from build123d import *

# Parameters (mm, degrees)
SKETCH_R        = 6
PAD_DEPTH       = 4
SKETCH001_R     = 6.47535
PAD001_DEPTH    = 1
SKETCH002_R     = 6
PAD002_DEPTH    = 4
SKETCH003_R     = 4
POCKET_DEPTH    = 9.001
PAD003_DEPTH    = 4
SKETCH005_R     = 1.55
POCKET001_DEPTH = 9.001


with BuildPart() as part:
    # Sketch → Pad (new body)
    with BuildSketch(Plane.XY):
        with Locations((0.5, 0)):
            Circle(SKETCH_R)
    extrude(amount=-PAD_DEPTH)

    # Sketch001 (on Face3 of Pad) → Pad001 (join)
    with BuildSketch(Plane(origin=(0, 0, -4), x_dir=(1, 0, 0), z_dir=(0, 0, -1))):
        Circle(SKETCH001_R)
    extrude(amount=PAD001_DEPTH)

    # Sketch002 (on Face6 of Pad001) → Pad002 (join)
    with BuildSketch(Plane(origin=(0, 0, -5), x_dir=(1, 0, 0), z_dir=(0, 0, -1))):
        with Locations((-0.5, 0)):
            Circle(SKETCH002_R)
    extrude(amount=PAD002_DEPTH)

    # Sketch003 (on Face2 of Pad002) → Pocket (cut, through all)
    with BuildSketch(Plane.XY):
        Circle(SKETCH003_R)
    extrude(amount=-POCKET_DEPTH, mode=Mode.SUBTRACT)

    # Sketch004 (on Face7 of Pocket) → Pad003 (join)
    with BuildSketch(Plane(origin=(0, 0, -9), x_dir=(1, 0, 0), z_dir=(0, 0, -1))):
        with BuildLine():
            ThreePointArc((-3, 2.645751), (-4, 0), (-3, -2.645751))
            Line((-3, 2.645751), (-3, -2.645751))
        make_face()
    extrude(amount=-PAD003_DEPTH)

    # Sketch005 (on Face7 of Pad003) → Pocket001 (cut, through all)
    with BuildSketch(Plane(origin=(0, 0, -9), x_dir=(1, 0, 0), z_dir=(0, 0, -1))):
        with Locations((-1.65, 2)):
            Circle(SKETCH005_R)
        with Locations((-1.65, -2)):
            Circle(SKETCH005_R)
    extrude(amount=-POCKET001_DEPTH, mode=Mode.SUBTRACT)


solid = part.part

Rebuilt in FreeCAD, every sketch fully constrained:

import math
import FreeCAD as App
import Part
import Sketcher
from FreeCAD import Vector

doc = App.newDocument("Part")
body = doc.addObject("PartDesign::Body", "Body")

sketch1 = body.newObject("Sketcher::SketchObject", "Sketch")
sketch1.AttachmentSupport = (doc.getObject("XY_Plane"), [""])
sketch1.MapMode = "FlatFace"
sketch1.addGeometry(Part.Circle(Vector(0, 0, 0), Vector(0, 0, 1), 6), False)
sketch1.addConstraint([
    Sketcher.Constraint("PointOnObject", 0, 3, -1),
    Sketcher.Constraint("Diameter", 0, 12.0),
    Sketcher.Constraint("DistanceX", -1, 1, 0, 3, 0.5),
])
pad1 = body.newObject("PartDesign::Pad", "Pad")
pad1.Profile = sketch1
pad1.Length = 4
pad1.Reversed = True

sketch2 = body.newObject("Sketcher::SketchObject", "Sketch001")
sketch2.AttachmentSupport = (doc.getObject("XY_Plane"), [""])
sketch2.MapMode = "FlatFace"
sketch2.AttachmentOffset = App.Placement(Vector(0, 0, -4), App.Rotation())
sketch2.addGeometry(Part.Circle(Vector(0, 0, 0), Vector(0, 0, 1), 6), False)
sketch2.addConstraint([
    Sketcher.Constraint("Coincident", 0, 3, -1, 1),
    Sketcher.Constraint("Diameter", 0, 12.9507),
])
pad2 = body.newObject("PartDesign::Pad", "Pad001")
pad2.Profile = sketch2
pad2.Length = 1
pad2.Reversed = True

sketch3 = body.newObject("Sketcher::SketchObject", "Sketch002")
sketch3.AttachmentSupport = (doc.getObject("XY_Plane"), [""])
sketch3.MapMode = "FlatFace"
sketch3.AttachmentOffset = App.Placement(Vector(0, 0, -5), App.Rotation())
sketch3.addGeometry(Part.Circle(Vector(0, 0, 0), Vector(0, 0, 1), 6), False)
sketch3.addConstraint([
    Sketcher.Constraint("PointOnObject", 0, 3, -1),
    Sketcher.Constraint("Diameter", 0, 12.0),
    Sketcher.Constraint("DistanceX", 0, 3, -1, 1, 0.5),
])
pad3 = body.newObject("PartDesign::Pad", "Pad002")
pad3.Profile = sketch3
pad3.Length = 4
pad3.Reversed = True

sketch4 = body.newObject("Sketcher::SketchObject", "Sketch003")
sketch4.AttachmentSupport = (doc.getObject("XY_Plane"), [""])
sketch4.MapMode = "FlatFace"
sketch4.addGeometry(Part.Circle(Vector(0, 0, 0), Vector(0, 0, 1), 4), False)
sketch4.addConstraint([
    Sketcher.Constraint("Coincident", 0, 3, -1, 1),
    Sketcher.Constraint("Diameter", 0, 8.0),
])
pocket1 = body.newObject("PartDesign::Pocket", "Pocket")
pocket1.Profile = sketch4
pocket1.Type = "ThroughAll"

sketch5 = body.newObject("Sketcher::SketchObject", "Sketch004")
sketch5.AttachmentSupport = (doc.getObject("XY_Plane"), [""])
sketch5.MapMode = "FlatFace"
sketch5.AttachmentOffset = App.Placement(Vector(0, 0, -9), App.Rotation())
sketch5.addGeometry([
    Part.ArcOfCircle(Part.Circle(Vector(0, 0, 0), Vector(0, 0, 1), 4), math.radians(139), math.radians(221)),
    Part.LineSegment(Vector(-3, 2.6, 0), Vector(-3, -2.6, 0)),
], False)
sketch5.addConstraint([
    Sketcher.Constraint("Coincident", 0, 1, 1, 1),
    Sketcher.Constraint("Coincident", 1, 2, 0, 2),
    Sketcher.Constraint("Vertical", 1),
    Sketcher.Constraint("Coincident", 0, 3, -1, 1),
    Sketcher.Constraint("Radius", 0, 3.999999),
    Sketcher.Constraint("DistanceX", 0, 1, -1, 1, 3.0),
])
pad4 = body.newObject("PartDesign::Pad", "Pad003")
pad4.Profile = sketch5
pad4.Length = 4

sketch6 = body.newObject("Sketcher::SketchObject", "Sketch005")
sketch6.AttachmentSupport = (doc.getObject("XY_Plane"), [""])
sketch6.MapMode = "FlatFace"
sketch6.AttachmentOffset = App.Placement(Vector(0, 0, -9), App.Rotation())
sketch6.addGeometry([
    Part.Circle(Vector(-1.6, -2, 0), Vector(0, 0, 1), 1.6),
    Part.Circle(Vector(-1.6, 2, 0), Vector(0, 0, 1), 1.6),
], False)
sketch6.addConstraint([
    Sketcher.Constraint("Equal", 0, 1),
    Sketcher.Constraint("Symmetric", 0, 3, 1, 3, -1),
    Sketcher.Constraint("Diameter", 0, 3.1),
    Sketcher.Constraint("DistanceY", 0, 3, -1, 1, 2.0),
    Sketcher.Constraint("DistanceX", 0, 3, -1, 1, 1.65),
])
pocket2 = body.newObject("PartDesign::Pocket", "Pocket001")
pocket2.Profile = sketch6
pocket2.Type = "ThroughAll"
pocket2.Reversed = True

doc.recompute()
